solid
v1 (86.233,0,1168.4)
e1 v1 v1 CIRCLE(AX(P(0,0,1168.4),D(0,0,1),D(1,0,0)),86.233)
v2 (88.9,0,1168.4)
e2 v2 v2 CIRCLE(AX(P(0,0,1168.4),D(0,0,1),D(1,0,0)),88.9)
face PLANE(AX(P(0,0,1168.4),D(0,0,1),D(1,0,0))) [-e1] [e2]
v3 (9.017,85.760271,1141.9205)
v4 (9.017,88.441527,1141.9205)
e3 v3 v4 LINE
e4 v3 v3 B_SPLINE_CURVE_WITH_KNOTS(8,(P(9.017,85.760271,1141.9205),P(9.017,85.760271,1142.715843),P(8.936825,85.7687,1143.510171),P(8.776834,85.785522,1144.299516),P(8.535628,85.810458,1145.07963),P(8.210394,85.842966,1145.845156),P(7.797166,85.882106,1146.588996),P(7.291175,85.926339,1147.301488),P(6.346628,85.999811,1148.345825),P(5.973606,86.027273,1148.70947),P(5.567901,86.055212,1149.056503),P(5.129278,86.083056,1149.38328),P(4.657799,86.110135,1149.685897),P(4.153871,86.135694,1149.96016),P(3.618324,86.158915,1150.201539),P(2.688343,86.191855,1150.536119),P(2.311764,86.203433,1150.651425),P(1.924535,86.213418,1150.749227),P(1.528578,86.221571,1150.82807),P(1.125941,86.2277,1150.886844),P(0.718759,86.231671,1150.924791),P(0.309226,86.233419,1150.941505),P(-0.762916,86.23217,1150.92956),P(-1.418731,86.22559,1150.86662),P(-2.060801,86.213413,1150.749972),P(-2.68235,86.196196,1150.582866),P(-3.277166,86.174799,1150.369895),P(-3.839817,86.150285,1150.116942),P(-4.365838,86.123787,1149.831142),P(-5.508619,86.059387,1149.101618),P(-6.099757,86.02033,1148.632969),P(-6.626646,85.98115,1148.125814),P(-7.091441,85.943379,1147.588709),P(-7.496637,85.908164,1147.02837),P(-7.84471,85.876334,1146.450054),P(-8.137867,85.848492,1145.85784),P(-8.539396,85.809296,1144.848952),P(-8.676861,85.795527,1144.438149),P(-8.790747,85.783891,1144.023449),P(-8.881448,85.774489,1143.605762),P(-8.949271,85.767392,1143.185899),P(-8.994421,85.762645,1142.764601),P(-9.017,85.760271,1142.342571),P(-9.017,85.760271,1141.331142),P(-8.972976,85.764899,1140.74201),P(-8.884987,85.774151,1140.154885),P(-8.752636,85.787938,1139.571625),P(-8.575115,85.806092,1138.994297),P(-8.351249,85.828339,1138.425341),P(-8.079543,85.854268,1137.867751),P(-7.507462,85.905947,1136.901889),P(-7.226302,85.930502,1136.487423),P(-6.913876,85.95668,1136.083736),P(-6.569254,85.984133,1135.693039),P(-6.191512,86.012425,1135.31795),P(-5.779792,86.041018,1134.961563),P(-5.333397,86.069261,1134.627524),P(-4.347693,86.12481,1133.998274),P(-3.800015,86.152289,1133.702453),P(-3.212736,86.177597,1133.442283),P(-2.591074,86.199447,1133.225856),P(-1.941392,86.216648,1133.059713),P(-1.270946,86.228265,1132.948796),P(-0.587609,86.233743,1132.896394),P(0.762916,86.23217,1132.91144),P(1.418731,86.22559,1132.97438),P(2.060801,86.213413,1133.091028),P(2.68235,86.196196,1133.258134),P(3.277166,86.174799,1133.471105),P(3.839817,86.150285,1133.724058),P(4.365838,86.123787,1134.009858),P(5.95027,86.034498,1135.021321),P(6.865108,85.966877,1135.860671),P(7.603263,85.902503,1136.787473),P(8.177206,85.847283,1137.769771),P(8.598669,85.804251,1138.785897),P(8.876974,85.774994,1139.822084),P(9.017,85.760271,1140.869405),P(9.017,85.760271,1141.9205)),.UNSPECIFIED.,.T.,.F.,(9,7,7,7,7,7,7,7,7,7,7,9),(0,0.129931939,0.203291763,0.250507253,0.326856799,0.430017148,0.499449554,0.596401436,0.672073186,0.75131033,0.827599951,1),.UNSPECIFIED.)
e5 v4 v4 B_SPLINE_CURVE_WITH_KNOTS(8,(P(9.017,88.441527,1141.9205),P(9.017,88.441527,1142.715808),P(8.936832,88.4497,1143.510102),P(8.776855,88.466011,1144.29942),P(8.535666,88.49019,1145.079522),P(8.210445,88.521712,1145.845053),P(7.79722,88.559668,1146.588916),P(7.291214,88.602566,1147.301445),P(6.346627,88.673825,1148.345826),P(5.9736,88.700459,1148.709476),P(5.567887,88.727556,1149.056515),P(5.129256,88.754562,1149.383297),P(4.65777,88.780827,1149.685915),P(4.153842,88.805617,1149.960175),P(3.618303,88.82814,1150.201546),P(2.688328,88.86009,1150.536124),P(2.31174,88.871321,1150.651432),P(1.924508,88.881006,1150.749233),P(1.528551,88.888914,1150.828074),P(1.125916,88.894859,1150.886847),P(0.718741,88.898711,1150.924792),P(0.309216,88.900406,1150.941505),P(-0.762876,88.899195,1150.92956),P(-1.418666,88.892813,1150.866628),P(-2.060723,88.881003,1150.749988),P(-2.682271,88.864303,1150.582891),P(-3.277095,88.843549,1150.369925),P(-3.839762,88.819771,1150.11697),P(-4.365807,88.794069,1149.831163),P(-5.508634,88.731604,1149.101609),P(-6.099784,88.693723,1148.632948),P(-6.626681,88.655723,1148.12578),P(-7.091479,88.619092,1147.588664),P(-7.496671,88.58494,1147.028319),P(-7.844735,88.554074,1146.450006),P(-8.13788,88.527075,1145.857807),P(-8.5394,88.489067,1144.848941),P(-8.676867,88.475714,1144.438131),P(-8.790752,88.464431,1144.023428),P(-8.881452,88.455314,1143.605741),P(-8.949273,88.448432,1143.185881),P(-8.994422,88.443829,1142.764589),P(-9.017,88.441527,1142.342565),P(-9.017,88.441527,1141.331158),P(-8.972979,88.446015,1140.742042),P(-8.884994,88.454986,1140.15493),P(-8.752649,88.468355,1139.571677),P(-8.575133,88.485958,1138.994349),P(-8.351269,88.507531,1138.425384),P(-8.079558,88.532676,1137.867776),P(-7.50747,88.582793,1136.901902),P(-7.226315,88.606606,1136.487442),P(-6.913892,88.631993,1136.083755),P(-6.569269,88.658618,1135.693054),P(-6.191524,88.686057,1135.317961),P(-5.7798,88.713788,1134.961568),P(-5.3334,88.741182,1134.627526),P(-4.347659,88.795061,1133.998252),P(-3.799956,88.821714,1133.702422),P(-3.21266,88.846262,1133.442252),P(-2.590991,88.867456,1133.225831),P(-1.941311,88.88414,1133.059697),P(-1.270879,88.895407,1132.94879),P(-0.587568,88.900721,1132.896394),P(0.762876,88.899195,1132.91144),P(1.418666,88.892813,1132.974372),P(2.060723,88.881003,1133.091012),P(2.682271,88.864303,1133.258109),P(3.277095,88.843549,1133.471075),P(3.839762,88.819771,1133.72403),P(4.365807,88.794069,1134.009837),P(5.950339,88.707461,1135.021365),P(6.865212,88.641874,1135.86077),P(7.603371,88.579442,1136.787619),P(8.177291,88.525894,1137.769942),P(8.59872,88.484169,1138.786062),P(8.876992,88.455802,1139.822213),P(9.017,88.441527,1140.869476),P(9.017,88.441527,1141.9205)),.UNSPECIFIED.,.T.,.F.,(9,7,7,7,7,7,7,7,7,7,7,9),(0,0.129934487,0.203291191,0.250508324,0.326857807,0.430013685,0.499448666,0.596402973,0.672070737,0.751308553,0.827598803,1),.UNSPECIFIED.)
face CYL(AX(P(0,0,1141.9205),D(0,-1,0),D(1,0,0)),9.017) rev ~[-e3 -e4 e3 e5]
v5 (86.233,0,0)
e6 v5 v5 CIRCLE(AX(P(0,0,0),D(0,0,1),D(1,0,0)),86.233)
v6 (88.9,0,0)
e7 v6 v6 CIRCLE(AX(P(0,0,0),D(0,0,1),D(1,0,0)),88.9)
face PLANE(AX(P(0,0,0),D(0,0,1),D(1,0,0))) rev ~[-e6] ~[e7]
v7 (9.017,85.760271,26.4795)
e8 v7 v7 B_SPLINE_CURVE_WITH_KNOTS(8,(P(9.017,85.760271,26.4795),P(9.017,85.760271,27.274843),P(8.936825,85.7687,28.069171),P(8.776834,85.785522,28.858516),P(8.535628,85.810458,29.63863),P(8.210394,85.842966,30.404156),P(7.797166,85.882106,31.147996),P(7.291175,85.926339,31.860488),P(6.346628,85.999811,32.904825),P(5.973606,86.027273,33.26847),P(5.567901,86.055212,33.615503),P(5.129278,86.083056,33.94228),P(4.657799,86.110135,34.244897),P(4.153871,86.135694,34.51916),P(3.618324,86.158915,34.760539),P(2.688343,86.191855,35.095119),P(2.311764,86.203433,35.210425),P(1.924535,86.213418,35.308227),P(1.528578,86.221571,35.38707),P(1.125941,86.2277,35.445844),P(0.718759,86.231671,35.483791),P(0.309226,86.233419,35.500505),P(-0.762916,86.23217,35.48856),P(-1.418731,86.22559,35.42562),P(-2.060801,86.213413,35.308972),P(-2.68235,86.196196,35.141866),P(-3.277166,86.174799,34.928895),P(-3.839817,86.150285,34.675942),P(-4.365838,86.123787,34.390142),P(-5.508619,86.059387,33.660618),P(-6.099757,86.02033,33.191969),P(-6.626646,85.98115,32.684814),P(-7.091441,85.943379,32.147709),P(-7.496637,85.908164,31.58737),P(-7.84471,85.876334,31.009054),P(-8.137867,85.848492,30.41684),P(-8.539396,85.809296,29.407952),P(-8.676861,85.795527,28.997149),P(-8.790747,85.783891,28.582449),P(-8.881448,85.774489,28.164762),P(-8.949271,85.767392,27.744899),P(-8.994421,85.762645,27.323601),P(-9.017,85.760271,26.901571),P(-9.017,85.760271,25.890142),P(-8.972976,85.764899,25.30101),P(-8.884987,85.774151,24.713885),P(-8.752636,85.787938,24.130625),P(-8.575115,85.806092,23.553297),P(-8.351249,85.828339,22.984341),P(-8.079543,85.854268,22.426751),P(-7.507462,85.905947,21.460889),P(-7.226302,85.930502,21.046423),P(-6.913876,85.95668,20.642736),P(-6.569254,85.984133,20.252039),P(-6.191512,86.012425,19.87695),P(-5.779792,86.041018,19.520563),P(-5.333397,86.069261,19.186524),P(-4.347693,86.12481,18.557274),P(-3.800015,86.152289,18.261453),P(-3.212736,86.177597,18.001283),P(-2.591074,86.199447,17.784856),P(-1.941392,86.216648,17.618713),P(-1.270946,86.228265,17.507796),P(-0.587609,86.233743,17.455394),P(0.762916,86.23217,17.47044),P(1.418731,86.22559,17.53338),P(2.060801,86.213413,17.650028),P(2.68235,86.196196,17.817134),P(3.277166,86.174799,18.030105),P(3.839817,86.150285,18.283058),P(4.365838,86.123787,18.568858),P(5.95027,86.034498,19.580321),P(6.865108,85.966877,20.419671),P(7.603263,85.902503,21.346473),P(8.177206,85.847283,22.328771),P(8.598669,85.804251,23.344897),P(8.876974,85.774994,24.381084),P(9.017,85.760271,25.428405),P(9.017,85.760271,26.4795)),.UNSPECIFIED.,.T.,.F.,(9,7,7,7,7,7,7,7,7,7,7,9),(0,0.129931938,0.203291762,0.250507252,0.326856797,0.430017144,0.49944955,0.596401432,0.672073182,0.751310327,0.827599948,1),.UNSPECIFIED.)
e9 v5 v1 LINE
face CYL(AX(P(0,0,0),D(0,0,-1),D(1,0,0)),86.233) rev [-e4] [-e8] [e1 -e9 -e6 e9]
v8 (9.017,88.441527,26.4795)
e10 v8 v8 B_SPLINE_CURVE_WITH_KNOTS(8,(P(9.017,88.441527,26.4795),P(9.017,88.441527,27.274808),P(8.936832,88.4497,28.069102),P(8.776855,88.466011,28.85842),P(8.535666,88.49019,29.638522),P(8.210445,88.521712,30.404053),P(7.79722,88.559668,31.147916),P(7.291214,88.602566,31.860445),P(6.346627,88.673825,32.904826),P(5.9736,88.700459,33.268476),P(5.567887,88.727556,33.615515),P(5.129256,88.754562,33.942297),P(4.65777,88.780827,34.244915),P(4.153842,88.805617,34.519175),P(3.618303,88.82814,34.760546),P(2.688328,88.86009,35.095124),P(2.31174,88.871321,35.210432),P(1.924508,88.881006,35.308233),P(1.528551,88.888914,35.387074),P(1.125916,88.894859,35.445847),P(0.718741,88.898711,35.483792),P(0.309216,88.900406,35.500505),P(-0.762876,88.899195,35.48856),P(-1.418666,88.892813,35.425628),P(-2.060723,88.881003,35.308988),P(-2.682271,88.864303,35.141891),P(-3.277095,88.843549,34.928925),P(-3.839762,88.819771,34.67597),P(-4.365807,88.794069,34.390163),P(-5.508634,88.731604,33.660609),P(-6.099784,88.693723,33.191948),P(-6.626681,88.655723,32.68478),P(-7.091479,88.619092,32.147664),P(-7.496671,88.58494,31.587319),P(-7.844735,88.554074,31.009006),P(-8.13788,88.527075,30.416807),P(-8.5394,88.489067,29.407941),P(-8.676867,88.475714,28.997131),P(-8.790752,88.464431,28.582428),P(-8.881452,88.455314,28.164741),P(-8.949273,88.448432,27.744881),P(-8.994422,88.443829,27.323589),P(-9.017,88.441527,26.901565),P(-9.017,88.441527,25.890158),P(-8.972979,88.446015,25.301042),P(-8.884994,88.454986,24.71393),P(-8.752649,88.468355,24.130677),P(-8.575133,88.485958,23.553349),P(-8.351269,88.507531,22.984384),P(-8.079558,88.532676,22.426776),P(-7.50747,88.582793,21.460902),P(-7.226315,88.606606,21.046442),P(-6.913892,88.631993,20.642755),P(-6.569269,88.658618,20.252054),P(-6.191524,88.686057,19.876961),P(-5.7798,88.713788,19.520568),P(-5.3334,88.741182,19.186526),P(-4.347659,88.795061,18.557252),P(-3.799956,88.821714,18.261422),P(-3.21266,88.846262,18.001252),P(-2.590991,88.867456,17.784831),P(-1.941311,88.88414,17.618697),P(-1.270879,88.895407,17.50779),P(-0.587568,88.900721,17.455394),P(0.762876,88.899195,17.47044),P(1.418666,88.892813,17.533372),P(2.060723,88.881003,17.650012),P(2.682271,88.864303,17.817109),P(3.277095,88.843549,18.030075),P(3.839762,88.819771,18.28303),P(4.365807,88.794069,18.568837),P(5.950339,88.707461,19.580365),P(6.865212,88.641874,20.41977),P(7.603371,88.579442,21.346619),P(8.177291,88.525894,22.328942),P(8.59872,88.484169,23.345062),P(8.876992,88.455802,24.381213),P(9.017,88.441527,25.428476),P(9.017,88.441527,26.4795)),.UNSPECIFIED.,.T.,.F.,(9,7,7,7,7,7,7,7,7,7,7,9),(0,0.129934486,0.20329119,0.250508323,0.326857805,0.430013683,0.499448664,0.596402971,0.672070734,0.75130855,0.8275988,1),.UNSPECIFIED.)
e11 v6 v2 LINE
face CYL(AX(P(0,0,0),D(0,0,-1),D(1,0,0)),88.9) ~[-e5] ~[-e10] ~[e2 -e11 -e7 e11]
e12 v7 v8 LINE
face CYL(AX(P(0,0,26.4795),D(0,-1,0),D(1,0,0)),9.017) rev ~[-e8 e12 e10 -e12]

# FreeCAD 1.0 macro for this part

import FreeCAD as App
import Part
import Sketcher
Q = App.Units.Quantity

doc = App.newDocument("Part")
body = doc.addObject("PartDesign::Body", "Body")

# Sketch on XY plane
sketch1 = body.newObject("Sketcher::SketchObject", "Sketch")
sketch1.AttachmentSupport = (doc.getObject("XY_Plane"), [""])
sketch1.MapMode = "FlatFace"
sketch1.addGeometry(Part.Circle(App.Vector(0, 0, 0), App.Vector(0, 0, 1), 89), False)
sketch1.addGeometry(Part.Circle(App.Vector(0, 0, 0), App.Vector(0, 0, 1), 86), False)
sketch1.addConstraint(Sketcher.Constraint("Coincident", 0, 3, -1, 1))
sketch1.addConstraint(Sketcher.Constraint("Coincident", 1, 3, -1, 1))
sketch1.addConstraint(Sketcher.Constraint("Diameter", 0, Q("7 in")))
sketch1.addConstraint(Sketcher.Constraint("Diameter", 1, Q("6.79 in")))
pad1 = body.newObject("PartDesign::Pad", "Pad")
pad1.Profile = sketch1
pad1.Length = Q("46 in")

# Sketch on XZ plane
sketch2 = body.newObject("Sketcher::SketchObject", "Sketch001")
sketch2.AttachmentSupport = (doc.getObject("XZ_Plane"), [""])
sketch2.MapMode = "FlatFace"
sketch2.addGeometry(Part.Circle(App.Vector(0, 1142, 0), App.Vector(0, 0, 1), 9), False)
sketch2.addGeometry(Part.Circle(App.Vector(0, 26, 0), App.Vector(0, 0, 1), 9), False)
sketch2.addConstraint(Sketcher.Constraint("Equal", 0, 1))
sketch2.addConstraint(Sketcher.Constraint("PointOnObject", 0, 3, -2))
sketch2.addConstraint(Sketcher.Constraint("PointOnObject", 1, 3, -2))
sketch2.addConstraint(Sketcher.Constraint("Diameter", 0, Q("0.71 in")))
sketch2.addConstraint(Sketcher.Constraint("DistanceY", 1, 3, 0, 3, Q("43.915 in")))
sketch2.addConstraint(Sketcher.Constraint("DistanceY", -1, 1, 0, 3, Q("44.9575 in")))
pocket1 = body.newObject("PartDesign::Pocket", "Pocket")
pocket1.Profile = sketch2
pocket1.Length = Q("8 in")

doc.recompute()
